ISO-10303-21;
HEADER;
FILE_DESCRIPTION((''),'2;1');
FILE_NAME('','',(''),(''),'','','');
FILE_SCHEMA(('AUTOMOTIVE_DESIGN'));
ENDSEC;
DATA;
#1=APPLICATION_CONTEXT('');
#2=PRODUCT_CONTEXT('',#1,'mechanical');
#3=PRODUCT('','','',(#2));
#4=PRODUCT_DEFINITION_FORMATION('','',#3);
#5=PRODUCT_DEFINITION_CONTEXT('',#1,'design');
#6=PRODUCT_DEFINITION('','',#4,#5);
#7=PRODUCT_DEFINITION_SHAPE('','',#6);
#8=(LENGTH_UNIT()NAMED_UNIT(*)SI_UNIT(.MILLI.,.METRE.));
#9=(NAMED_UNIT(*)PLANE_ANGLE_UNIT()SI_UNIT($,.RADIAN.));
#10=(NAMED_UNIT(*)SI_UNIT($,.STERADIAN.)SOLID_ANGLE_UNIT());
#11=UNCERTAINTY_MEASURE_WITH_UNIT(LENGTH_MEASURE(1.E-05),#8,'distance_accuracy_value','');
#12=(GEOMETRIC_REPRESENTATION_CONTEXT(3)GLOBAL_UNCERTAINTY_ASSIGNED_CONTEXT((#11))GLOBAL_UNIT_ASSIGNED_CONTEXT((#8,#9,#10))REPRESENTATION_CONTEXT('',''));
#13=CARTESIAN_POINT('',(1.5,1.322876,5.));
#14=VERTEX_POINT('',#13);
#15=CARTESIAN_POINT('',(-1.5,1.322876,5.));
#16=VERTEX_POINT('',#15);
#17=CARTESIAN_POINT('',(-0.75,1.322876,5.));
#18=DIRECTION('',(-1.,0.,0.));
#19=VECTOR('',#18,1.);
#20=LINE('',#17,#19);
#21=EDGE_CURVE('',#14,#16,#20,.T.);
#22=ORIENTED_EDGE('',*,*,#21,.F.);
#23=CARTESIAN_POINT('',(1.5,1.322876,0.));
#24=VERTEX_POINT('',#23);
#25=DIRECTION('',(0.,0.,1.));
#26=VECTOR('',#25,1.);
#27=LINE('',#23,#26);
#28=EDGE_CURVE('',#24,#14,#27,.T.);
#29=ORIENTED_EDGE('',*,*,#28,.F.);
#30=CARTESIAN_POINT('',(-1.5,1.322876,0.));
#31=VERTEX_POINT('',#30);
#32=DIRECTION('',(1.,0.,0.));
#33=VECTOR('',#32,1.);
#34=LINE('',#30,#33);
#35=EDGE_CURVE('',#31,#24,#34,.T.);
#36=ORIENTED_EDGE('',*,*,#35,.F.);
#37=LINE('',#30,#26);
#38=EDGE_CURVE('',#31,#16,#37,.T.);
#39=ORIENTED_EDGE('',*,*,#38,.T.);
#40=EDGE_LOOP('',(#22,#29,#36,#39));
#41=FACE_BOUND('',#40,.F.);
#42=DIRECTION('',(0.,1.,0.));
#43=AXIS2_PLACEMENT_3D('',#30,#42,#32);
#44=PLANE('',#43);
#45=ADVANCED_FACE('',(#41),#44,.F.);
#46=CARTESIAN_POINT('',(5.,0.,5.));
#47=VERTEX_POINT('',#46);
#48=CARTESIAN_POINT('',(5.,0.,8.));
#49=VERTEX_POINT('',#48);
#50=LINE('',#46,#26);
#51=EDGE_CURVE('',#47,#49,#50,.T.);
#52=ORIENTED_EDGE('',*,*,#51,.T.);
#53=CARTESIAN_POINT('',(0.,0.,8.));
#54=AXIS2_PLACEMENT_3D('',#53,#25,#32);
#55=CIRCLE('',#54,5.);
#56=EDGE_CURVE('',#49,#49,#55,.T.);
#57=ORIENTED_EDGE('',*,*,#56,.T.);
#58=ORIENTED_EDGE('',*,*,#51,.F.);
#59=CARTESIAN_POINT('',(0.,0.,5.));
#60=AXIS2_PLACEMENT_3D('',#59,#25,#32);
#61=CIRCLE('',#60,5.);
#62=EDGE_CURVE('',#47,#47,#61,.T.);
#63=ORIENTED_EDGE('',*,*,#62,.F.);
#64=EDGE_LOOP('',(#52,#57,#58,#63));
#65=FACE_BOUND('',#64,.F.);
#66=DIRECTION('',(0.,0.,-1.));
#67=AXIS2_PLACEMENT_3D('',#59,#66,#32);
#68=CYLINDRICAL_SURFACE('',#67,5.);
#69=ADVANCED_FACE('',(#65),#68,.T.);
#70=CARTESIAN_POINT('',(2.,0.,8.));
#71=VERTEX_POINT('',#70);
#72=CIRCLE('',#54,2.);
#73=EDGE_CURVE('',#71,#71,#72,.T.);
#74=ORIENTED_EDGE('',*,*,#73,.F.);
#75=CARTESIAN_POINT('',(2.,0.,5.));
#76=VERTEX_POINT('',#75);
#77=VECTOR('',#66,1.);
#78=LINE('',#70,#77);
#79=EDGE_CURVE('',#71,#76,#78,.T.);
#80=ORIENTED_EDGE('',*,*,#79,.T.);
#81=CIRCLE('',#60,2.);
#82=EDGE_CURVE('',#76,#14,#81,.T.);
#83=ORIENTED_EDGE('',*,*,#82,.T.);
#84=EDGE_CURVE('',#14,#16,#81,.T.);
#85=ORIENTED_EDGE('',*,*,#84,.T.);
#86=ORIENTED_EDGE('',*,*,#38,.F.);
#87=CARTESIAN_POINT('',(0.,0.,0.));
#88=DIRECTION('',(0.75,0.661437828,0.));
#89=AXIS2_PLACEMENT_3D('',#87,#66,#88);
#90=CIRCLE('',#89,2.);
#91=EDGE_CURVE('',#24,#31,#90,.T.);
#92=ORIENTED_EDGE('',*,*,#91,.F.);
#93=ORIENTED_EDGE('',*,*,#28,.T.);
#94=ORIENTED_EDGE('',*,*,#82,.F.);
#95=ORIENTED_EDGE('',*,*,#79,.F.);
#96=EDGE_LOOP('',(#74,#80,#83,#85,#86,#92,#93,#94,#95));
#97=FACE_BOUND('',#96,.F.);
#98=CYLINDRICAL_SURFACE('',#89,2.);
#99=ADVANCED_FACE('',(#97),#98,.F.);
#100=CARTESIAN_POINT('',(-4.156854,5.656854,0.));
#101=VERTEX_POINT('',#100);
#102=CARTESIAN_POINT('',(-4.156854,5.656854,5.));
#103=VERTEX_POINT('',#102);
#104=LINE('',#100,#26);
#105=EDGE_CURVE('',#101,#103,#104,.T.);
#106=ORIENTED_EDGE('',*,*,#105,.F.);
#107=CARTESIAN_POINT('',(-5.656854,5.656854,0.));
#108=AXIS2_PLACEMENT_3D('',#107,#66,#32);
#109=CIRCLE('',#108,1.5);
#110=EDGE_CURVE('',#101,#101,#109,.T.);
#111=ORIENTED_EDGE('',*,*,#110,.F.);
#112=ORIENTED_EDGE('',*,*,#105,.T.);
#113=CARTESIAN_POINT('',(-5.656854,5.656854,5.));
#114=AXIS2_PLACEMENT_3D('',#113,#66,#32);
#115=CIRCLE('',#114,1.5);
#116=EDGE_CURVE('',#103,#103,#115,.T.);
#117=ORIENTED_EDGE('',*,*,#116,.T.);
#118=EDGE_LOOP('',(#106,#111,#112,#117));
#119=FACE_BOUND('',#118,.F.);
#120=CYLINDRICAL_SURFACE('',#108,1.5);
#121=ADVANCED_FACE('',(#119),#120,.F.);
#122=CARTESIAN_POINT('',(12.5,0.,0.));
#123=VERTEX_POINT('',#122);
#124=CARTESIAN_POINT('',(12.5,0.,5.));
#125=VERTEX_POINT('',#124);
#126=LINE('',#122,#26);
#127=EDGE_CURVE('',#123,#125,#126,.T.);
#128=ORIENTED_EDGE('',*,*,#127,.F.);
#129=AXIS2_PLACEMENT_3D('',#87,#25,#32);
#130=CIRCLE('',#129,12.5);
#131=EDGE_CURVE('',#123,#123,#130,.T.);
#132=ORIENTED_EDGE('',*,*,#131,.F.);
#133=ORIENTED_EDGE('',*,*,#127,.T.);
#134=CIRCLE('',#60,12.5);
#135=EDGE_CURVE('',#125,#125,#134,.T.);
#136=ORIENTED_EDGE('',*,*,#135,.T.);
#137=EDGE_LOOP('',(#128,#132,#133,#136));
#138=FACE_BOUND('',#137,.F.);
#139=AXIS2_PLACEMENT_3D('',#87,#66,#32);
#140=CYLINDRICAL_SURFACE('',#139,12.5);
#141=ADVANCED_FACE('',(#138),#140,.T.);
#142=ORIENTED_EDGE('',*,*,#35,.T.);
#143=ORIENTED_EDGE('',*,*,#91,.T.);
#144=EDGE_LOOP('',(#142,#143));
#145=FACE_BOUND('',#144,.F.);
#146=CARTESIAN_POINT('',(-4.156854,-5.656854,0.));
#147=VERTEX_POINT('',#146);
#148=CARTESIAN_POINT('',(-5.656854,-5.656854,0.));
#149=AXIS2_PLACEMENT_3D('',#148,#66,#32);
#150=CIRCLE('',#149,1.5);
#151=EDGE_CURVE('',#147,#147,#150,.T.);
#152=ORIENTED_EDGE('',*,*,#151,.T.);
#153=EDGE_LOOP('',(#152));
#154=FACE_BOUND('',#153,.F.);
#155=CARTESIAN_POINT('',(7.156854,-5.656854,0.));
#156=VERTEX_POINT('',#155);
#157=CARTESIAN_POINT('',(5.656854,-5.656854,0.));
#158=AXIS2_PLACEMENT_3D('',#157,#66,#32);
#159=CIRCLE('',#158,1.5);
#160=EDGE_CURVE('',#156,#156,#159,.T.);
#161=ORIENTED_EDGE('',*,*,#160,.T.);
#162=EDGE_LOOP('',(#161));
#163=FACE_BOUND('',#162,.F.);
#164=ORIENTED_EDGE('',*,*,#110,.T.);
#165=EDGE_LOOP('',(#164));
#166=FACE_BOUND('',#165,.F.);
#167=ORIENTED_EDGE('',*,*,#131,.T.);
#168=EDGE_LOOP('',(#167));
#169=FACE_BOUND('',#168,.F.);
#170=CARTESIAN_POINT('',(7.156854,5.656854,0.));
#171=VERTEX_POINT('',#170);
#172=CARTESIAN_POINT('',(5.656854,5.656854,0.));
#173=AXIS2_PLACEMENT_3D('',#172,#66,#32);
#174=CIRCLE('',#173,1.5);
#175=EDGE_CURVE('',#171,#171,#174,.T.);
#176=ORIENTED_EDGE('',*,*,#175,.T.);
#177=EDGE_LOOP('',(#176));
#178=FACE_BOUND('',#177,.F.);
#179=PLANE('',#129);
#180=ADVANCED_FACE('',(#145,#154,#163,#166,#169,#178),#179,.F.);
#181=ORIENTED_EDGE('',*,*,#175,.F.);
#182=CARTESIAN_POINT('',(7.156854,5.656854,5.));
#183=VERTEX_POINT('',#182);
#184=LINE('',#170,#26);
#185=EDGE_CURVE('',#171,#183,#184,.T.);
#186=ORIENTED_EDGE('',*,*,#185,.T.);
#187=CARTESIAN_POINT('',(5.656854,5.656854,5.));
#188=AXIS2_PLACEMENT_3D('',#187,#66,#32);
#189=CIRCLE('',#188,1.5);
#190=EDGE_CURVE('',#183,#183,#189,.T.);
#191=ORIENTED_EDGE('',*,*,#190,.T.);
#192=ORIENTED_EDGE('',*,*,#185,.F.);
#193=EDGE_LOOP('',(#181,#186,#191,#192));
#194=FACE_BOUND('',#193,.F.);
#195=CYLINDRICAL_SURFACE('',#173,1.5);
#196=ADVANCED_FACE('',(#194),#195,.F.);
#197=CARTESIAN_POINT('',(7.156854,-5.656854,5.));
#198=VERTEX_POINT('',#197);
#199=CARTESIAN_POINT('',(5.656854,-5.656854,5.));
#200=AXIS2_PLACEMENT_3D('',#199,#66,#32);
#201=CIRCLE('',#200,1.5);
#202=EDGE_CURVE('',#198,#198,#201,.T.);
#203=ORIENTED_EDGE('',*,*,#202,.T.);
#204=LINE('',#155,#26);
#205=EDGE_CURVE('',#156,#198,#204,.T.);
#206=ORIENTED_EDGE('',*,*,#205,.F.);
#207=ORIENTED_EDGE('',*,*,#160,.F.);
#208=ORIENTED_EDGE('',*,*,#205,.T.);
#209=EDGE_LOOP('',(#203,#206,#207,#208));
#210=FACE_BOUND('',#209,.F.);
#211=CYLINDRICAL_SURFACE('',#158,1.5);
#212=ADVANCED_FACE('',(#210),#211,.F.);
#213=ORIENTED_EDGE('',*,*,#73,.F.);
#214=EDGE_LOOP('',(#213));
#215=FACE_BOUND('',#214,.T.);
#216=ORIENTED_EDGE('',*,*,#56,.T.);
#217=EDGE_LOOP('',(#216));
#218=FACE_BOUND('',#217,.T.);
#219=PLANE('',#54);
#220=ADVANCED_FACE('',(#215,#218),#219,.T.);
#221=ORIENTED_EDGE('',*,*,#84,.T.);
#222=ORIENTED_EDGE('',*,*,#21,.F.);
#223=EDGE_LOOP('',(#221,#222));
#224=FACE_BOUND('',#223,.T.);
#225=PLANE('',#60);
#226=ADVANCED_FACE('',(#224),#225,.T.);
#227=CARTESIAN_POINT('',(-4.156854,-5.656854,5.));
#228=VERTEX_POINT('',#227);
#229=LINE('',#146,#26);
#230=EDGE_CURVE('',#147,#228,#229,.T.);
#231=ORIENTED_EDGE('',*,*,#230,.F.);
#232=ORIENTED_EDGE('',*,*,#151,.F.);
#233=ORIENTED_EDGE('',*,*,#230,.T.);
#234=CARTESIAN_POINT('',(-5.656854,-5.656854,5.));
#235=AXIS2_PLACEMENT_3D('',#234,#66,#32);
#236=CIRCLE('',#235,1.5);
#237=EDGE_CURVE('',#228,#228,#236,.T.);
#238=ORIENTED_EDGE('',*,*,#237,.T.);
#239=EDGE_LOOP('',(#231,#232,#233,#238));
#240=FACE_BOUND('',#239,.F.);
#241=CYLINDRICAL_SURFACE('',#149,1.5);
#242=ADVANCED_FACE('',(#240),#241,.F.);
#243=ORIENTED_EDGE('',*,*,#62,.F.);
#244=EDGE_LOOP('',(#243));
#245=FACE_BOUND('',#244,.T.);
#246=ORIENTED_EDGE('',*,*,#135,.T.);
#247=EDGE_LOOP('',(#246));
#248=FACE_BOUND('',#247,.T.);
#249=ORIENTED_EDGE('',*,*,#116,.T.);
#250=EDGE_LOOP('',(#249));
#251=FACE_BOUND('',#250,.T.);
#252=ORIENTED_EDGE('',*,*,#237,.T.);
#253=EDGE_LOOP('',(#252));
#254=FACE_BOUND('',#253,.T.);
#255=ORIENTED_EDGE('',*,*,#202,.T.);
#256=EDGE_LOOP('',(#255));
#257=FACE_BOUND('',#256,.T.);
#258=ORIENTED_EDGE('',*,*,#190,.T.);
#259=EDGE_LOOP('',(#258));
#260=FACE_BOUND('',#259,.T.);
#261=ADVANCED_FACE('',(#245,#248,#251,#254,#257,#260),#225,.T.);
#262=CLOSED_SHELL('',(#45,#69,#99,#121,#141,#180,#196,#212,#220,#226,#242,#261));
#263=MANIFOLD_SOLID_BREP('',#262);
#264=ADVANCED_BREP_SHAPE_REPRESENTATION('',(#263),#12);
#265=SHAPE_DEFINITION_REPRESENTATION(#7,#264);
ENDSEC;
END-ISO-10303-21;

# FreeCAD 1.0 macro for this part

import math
import FreeCAD as App
import Part
import Sketcher

doc = App.newDocument("Part")
body = doc.addObject("PartDesign::Body", "Body")

sketch1 = doc.addObject("Sketcher::SketchObject", "Sketch")
body.addObject(sketch1)
sketch1.AttachmentSupport = (doc.XY_Plane, [""])
sketch1.MapMode = "FlatFace"
sketch1.addGeometry(Part.Circle(App.Vector(0, 0, 0), App.Vector(0, 0, 1), 12.5), False)
sketch1.addConstraint(Sketcher.Constraint("Coincident", 0, 3, -1, 1))
sketch1.addConstraint(Sketcher.Constraint("Diameter", 0, 25.0))
pad1 = doc.addObject("PartDesign::Pad", "Pad")
body.addObject(pad1)
pad1.Profile = sketch1
pad1.Length = 5

sketch2 = doc.addObject("Sketcher::SketchObject", "Sketch001")
body.addObject(sketch2)
sketch2.AttachmentSupport = (doc.XY_Plane, [""])
sketch2.MapMode = "FlatFace"
sketch2.AttachmentOffset = App.Placement(App.Vector(0, 0, 5), App.Rotation())
sketch2.addGeometry(Part.Circle(App.Vector(0, 0, 0), App.Vector(0, 0, 1), 5), False)
sketch2.addConstraint(Sketcher.Constraint("Coincident", 0, 3, -1, 1))
sketch2.addConstraint(Sketcher.Constraint("Diameter", 0, 10.0))
pad2 = doc.addObject("PartDesign::Pad", "Pad001")
body.addObject(pad2)
pad2.Profile = sketch2
pad2.Length = 3

sketch3 = doc.addObject("Sketcher::SketchObject", "Sketch002")
body.addObject(sketch3)
sketch3.AttachmentSupport = (doc.XY_Plane, [""])
sketch3.MapMode = "FlatFace"
sketch3.AttachmentOffset = App.Placement(App.Vector(0, 0, 8), App.Rotation())
sketch3.addGeometry(Part.Circle(App.Vector(0, 0, 0), App.Vector(0, 0, 1), 2), False)
sketch3.addConstraint(Sketcher.Constraint("Coincident", 0, 3, -1, 1))
sketch3.addConstraint(Sketcher.Constraint("Diameter", 0, 4.0))
pocket1 = doc.addObject("PartDesign::Pocket", "Pocket")
body.addObject(pocket1)
pocket1.Profile = sketch3
pocket1.Length = 3

sketch4 = doc.addObject("Sketcher::SketchObject", "Sketch003")
body.addObject(sketch4)
sketch4.AttachmentSupport = (doc.XY_Plane, [""])
sketch4.MapMode = "FlatFace"
sketch4.addGeometry(Part.LineSegment(App.Vector(-1.5, 1.322876, 0), App.Vector(1.5, 1.322876, 0)), False)
sketch4.addGeometry(Part.ArcOfCircle(Part.Circle(App.Vector(0, 0, 0), App.Vector(0, 0, 1), 2), math.radians(138.590378), math.radians(401.409622)), False)
sketch4.addConstraint(Sketcher.Constraint("Coincident", 0, 1, 1, 1))
sketch4.addConstraint(Sketcher.Constraint("Coincident", 1, 2, 0, 2))
sketch4.addConstraint(Sketcher.Constraint("Horizontal", 0))
sketch4.addConstraint(Sketcher.Constraint("Coincident", 1, 3, -1, 1))
sketch4.addConstraint(Sketcher.Constraint("Radius", 1, 2.0))
sketch4.addConstraint(Sketcher.Constraint("DistanceX", 0, 1, 0, 2, 3.0))
pocket2 = doc.addObject("PartDesign::Pocket", "Pocket001")
body.addObject(pocket2)
pocket2.Profile = sketch4
pocket2.Length = 25
pocket2.Reversed = True

sketch5 = doc.addObject("Sketcher::SketchObject", "Sketch004")
body.addObject(sketch5)
sketch5.AttachmentSupport = (doc.XY_Plane, [""])
sketch5.MapMode = "FlatFace"
sketch5.addGeometry(Part.Circle(App.Vector(-5.656854, -5.656854, 0), App.Vector(0, 0, 1), 1.5), False)
sketch5.addGeometry(Part.Circle(App.Vector(-5.656854, 5.656854, 0), App.Vector(0, 0, 1), 1.5), False)
sketch5.addGeometry(Part.Circle(App.Vector(5.656854, 5.656854, 0), App.Vector(0, 0, 1), 1.5), False)
sketch5.addGeometry(Part.Circle(App.Vector(5.656854, -5.656854, 0), App.Vector(0, 0, 1), 1.5), False)
sketch5.addConstraint(Sketcher.Constraint("Equal", 0, 1))
sketch5.addConstraint(Sketcher.Constraint("Equal", 1, 2))
sketch5.addConstraint(Sketcher.Constraint("Equal", 2, 3))
sketch5.addConstraint(Sketcher.Constraint("Symmetric", 0, 3, 2, 3, -1, 1))
sketch5.addConstraint(Sketcher.Constraint("Symmetric", 1, 3, 3, 3, -1, 1))
sketch5.addConstraint(Sketcher.Constraint("Symmetric", 1, 3, 2, 3, -2))
sketch5.addConstraint(Sketcher.Constraint("Diameter", 0, 3.0))
sketch5.addConstraint(Sketcher.Constraint("DistanceY", 0, 3, 1, 3, 11.313709))
sketch5.addConstraint(Sketcher.Constraint("DistanceX", 1, 3, 2, 3, 11.313709))
pocket3 = doc.addObject("PartDesign::Pocket", "Pocket002")
body.addObject(pocket3)
pocket3.Profile = sketch5
pocket3.Length = 25
pocket3.Reversed = True

doc.recompute()
